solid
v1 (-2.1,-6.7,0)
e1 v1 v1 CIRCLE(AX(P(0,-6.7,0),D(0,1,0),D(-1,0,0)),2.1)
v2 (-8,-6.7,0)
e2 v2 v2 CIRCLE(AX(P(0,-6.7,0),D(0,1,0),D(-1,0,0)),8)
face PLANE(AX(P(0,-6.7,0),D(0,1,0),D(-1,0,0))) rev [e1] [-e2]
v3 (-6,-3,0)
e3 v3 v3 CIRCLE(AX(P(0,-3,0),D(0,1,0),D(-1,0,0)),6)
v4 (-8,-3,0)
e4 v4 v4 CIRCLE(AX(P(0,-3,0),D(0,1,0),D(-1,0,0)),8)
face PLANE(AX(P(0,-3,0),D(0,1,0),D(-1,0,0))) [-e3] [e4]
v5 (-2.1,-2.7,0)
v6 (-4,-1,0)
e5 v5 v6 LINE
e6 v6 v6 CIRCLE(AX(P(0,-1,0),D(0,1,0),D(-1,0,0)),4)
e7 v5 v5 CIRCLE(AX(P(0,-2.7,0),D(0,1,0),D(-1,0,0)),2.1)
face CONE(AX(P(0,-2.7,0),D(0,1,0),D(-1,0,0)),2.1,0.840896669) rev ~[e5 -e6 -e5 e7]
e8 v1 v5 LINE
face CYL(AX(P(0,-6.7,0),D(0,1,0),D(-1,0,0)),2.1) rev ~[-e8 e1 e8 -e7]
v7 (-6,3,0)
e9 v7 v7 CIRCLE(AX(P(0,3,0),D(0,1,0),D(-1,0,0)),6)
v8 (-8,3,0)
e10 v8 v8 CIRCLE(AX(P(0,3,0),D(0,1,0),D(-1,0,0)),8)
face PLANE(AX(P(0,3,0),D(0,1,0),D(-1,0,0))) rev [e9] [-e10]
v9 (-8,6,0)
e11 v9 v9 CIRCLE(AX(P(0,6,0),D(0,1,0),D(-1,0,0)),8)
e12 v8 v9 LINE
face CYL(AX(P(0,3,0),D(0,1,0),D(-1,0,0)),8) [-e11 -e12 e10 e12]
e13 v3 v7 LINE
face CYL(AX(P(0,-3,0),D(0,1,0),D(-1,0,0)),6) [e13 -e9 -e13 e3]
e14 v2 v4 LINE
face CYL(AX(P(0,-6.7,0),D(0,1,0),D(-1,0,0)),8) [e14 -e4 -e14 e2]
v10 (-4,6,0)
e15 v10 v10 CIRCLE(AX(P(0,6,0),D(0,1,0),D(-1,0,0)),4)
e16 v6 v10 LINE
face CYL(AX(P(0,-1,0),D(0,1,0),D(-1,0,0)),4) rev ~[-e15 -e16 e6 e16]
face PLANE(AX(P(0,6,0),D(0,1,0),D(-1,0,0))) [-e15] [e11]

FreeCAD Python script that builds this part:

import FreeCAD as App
import Part
import Sketcher
Q = App.Units.Quantity


def add_polygon(sketch, points):
    """Adds a closed chain of lines whose ends are joined by coincident constraints."""
    first, n = sketch.GeometryCount, len(points)
    for a, b in zip(points, points[1:] + points[:1]):
        sketch.addGeometry(Part.LineSegment(App.Vector(*a, 0), App.Vector(*b, 0)), False)
    for i in range(n):
        sketch.addConstraint(Sketcher.Constraint("Coincident", first + i, 2, first + (i + 1) % n, 1))

doc = App.newDocument("Part")
body = doc.addObject("PartDesign::Body", "Body")

# Sketch on XY plane
sketch1 = body.newObject("Sketcher::SketchObject", "Sketch")
sketch1.AttachmentSupport = (doc.getObject("XY_Plane"), [""])
sketch1.MapMode = "FlatFace"
add_polygon(sketch1, [(-8, -6.7), (-2.1, -6.7), (-2.1, -2.7), (-4, -1), (-4, 6), (-8, 6), (-8, 3), (-6, 3), (-6, -3), (-8, -3)])  # lines 0-9
sketch1.addConstraint([
    Sketcher.Constraint("Horizontal", 0),
    Sketcher.Constraint("Vertical", 1),
    Sketcher.Constraint("Vertical", 3),
    Sketcher.Constraint("Horizontal", 4),
    Sketcher.Constraint("Vertical", 5),
    Sketcher.Constraint("Horizontal", 6),
    Sketcher.Constraint("Vertical", 7),
    Sketcher.Constraint("Horizontal", 8),
    Sketcher.Constraint("Vertical", 9),
    Sketcher.Constraint("Symmetric", 5, 2, 8, 2, -1),
    Sketcher.Constraint("Equal", 4, 1),
    Sketcher.Constraint("DistanceX", 4, 2, 4, 1, Q("4 mm")),
    Sketcher.Constraint("DistanceY", 3, 1, 3, 2, Q("7 mm")),
    Sketcher.Constraint("DistanceY", 5, 2, 5, 1, Q("3 mm")),
    Sketcher.Constraint("DistanceY", 7, 2, 7, 1, Q("6 mm")),
    Sketcher.Constraint("DistanceY", 9, 2, 9, 1, Q("3.7 mm")),
    Sketcher.Constraint("DistanceX", 2, 2, -1, 1, Q("4 mm")),
    Sketcher.Constraint("DistanceX", 6, 2, -1, 1, Q("6 mm")),
    Sketcher.Constraint("DistanceX", 0, 2, -1, 1, Q("2.1 mm")),
])
revolution = body.newObject("PartDesign::Revolution", "Revolution")
revolution.Profile = sketch1
revolution.ReferenceAxis = (sketch1, ["V_Axis"])
revolution.Angle = 360

doc.recompute()
